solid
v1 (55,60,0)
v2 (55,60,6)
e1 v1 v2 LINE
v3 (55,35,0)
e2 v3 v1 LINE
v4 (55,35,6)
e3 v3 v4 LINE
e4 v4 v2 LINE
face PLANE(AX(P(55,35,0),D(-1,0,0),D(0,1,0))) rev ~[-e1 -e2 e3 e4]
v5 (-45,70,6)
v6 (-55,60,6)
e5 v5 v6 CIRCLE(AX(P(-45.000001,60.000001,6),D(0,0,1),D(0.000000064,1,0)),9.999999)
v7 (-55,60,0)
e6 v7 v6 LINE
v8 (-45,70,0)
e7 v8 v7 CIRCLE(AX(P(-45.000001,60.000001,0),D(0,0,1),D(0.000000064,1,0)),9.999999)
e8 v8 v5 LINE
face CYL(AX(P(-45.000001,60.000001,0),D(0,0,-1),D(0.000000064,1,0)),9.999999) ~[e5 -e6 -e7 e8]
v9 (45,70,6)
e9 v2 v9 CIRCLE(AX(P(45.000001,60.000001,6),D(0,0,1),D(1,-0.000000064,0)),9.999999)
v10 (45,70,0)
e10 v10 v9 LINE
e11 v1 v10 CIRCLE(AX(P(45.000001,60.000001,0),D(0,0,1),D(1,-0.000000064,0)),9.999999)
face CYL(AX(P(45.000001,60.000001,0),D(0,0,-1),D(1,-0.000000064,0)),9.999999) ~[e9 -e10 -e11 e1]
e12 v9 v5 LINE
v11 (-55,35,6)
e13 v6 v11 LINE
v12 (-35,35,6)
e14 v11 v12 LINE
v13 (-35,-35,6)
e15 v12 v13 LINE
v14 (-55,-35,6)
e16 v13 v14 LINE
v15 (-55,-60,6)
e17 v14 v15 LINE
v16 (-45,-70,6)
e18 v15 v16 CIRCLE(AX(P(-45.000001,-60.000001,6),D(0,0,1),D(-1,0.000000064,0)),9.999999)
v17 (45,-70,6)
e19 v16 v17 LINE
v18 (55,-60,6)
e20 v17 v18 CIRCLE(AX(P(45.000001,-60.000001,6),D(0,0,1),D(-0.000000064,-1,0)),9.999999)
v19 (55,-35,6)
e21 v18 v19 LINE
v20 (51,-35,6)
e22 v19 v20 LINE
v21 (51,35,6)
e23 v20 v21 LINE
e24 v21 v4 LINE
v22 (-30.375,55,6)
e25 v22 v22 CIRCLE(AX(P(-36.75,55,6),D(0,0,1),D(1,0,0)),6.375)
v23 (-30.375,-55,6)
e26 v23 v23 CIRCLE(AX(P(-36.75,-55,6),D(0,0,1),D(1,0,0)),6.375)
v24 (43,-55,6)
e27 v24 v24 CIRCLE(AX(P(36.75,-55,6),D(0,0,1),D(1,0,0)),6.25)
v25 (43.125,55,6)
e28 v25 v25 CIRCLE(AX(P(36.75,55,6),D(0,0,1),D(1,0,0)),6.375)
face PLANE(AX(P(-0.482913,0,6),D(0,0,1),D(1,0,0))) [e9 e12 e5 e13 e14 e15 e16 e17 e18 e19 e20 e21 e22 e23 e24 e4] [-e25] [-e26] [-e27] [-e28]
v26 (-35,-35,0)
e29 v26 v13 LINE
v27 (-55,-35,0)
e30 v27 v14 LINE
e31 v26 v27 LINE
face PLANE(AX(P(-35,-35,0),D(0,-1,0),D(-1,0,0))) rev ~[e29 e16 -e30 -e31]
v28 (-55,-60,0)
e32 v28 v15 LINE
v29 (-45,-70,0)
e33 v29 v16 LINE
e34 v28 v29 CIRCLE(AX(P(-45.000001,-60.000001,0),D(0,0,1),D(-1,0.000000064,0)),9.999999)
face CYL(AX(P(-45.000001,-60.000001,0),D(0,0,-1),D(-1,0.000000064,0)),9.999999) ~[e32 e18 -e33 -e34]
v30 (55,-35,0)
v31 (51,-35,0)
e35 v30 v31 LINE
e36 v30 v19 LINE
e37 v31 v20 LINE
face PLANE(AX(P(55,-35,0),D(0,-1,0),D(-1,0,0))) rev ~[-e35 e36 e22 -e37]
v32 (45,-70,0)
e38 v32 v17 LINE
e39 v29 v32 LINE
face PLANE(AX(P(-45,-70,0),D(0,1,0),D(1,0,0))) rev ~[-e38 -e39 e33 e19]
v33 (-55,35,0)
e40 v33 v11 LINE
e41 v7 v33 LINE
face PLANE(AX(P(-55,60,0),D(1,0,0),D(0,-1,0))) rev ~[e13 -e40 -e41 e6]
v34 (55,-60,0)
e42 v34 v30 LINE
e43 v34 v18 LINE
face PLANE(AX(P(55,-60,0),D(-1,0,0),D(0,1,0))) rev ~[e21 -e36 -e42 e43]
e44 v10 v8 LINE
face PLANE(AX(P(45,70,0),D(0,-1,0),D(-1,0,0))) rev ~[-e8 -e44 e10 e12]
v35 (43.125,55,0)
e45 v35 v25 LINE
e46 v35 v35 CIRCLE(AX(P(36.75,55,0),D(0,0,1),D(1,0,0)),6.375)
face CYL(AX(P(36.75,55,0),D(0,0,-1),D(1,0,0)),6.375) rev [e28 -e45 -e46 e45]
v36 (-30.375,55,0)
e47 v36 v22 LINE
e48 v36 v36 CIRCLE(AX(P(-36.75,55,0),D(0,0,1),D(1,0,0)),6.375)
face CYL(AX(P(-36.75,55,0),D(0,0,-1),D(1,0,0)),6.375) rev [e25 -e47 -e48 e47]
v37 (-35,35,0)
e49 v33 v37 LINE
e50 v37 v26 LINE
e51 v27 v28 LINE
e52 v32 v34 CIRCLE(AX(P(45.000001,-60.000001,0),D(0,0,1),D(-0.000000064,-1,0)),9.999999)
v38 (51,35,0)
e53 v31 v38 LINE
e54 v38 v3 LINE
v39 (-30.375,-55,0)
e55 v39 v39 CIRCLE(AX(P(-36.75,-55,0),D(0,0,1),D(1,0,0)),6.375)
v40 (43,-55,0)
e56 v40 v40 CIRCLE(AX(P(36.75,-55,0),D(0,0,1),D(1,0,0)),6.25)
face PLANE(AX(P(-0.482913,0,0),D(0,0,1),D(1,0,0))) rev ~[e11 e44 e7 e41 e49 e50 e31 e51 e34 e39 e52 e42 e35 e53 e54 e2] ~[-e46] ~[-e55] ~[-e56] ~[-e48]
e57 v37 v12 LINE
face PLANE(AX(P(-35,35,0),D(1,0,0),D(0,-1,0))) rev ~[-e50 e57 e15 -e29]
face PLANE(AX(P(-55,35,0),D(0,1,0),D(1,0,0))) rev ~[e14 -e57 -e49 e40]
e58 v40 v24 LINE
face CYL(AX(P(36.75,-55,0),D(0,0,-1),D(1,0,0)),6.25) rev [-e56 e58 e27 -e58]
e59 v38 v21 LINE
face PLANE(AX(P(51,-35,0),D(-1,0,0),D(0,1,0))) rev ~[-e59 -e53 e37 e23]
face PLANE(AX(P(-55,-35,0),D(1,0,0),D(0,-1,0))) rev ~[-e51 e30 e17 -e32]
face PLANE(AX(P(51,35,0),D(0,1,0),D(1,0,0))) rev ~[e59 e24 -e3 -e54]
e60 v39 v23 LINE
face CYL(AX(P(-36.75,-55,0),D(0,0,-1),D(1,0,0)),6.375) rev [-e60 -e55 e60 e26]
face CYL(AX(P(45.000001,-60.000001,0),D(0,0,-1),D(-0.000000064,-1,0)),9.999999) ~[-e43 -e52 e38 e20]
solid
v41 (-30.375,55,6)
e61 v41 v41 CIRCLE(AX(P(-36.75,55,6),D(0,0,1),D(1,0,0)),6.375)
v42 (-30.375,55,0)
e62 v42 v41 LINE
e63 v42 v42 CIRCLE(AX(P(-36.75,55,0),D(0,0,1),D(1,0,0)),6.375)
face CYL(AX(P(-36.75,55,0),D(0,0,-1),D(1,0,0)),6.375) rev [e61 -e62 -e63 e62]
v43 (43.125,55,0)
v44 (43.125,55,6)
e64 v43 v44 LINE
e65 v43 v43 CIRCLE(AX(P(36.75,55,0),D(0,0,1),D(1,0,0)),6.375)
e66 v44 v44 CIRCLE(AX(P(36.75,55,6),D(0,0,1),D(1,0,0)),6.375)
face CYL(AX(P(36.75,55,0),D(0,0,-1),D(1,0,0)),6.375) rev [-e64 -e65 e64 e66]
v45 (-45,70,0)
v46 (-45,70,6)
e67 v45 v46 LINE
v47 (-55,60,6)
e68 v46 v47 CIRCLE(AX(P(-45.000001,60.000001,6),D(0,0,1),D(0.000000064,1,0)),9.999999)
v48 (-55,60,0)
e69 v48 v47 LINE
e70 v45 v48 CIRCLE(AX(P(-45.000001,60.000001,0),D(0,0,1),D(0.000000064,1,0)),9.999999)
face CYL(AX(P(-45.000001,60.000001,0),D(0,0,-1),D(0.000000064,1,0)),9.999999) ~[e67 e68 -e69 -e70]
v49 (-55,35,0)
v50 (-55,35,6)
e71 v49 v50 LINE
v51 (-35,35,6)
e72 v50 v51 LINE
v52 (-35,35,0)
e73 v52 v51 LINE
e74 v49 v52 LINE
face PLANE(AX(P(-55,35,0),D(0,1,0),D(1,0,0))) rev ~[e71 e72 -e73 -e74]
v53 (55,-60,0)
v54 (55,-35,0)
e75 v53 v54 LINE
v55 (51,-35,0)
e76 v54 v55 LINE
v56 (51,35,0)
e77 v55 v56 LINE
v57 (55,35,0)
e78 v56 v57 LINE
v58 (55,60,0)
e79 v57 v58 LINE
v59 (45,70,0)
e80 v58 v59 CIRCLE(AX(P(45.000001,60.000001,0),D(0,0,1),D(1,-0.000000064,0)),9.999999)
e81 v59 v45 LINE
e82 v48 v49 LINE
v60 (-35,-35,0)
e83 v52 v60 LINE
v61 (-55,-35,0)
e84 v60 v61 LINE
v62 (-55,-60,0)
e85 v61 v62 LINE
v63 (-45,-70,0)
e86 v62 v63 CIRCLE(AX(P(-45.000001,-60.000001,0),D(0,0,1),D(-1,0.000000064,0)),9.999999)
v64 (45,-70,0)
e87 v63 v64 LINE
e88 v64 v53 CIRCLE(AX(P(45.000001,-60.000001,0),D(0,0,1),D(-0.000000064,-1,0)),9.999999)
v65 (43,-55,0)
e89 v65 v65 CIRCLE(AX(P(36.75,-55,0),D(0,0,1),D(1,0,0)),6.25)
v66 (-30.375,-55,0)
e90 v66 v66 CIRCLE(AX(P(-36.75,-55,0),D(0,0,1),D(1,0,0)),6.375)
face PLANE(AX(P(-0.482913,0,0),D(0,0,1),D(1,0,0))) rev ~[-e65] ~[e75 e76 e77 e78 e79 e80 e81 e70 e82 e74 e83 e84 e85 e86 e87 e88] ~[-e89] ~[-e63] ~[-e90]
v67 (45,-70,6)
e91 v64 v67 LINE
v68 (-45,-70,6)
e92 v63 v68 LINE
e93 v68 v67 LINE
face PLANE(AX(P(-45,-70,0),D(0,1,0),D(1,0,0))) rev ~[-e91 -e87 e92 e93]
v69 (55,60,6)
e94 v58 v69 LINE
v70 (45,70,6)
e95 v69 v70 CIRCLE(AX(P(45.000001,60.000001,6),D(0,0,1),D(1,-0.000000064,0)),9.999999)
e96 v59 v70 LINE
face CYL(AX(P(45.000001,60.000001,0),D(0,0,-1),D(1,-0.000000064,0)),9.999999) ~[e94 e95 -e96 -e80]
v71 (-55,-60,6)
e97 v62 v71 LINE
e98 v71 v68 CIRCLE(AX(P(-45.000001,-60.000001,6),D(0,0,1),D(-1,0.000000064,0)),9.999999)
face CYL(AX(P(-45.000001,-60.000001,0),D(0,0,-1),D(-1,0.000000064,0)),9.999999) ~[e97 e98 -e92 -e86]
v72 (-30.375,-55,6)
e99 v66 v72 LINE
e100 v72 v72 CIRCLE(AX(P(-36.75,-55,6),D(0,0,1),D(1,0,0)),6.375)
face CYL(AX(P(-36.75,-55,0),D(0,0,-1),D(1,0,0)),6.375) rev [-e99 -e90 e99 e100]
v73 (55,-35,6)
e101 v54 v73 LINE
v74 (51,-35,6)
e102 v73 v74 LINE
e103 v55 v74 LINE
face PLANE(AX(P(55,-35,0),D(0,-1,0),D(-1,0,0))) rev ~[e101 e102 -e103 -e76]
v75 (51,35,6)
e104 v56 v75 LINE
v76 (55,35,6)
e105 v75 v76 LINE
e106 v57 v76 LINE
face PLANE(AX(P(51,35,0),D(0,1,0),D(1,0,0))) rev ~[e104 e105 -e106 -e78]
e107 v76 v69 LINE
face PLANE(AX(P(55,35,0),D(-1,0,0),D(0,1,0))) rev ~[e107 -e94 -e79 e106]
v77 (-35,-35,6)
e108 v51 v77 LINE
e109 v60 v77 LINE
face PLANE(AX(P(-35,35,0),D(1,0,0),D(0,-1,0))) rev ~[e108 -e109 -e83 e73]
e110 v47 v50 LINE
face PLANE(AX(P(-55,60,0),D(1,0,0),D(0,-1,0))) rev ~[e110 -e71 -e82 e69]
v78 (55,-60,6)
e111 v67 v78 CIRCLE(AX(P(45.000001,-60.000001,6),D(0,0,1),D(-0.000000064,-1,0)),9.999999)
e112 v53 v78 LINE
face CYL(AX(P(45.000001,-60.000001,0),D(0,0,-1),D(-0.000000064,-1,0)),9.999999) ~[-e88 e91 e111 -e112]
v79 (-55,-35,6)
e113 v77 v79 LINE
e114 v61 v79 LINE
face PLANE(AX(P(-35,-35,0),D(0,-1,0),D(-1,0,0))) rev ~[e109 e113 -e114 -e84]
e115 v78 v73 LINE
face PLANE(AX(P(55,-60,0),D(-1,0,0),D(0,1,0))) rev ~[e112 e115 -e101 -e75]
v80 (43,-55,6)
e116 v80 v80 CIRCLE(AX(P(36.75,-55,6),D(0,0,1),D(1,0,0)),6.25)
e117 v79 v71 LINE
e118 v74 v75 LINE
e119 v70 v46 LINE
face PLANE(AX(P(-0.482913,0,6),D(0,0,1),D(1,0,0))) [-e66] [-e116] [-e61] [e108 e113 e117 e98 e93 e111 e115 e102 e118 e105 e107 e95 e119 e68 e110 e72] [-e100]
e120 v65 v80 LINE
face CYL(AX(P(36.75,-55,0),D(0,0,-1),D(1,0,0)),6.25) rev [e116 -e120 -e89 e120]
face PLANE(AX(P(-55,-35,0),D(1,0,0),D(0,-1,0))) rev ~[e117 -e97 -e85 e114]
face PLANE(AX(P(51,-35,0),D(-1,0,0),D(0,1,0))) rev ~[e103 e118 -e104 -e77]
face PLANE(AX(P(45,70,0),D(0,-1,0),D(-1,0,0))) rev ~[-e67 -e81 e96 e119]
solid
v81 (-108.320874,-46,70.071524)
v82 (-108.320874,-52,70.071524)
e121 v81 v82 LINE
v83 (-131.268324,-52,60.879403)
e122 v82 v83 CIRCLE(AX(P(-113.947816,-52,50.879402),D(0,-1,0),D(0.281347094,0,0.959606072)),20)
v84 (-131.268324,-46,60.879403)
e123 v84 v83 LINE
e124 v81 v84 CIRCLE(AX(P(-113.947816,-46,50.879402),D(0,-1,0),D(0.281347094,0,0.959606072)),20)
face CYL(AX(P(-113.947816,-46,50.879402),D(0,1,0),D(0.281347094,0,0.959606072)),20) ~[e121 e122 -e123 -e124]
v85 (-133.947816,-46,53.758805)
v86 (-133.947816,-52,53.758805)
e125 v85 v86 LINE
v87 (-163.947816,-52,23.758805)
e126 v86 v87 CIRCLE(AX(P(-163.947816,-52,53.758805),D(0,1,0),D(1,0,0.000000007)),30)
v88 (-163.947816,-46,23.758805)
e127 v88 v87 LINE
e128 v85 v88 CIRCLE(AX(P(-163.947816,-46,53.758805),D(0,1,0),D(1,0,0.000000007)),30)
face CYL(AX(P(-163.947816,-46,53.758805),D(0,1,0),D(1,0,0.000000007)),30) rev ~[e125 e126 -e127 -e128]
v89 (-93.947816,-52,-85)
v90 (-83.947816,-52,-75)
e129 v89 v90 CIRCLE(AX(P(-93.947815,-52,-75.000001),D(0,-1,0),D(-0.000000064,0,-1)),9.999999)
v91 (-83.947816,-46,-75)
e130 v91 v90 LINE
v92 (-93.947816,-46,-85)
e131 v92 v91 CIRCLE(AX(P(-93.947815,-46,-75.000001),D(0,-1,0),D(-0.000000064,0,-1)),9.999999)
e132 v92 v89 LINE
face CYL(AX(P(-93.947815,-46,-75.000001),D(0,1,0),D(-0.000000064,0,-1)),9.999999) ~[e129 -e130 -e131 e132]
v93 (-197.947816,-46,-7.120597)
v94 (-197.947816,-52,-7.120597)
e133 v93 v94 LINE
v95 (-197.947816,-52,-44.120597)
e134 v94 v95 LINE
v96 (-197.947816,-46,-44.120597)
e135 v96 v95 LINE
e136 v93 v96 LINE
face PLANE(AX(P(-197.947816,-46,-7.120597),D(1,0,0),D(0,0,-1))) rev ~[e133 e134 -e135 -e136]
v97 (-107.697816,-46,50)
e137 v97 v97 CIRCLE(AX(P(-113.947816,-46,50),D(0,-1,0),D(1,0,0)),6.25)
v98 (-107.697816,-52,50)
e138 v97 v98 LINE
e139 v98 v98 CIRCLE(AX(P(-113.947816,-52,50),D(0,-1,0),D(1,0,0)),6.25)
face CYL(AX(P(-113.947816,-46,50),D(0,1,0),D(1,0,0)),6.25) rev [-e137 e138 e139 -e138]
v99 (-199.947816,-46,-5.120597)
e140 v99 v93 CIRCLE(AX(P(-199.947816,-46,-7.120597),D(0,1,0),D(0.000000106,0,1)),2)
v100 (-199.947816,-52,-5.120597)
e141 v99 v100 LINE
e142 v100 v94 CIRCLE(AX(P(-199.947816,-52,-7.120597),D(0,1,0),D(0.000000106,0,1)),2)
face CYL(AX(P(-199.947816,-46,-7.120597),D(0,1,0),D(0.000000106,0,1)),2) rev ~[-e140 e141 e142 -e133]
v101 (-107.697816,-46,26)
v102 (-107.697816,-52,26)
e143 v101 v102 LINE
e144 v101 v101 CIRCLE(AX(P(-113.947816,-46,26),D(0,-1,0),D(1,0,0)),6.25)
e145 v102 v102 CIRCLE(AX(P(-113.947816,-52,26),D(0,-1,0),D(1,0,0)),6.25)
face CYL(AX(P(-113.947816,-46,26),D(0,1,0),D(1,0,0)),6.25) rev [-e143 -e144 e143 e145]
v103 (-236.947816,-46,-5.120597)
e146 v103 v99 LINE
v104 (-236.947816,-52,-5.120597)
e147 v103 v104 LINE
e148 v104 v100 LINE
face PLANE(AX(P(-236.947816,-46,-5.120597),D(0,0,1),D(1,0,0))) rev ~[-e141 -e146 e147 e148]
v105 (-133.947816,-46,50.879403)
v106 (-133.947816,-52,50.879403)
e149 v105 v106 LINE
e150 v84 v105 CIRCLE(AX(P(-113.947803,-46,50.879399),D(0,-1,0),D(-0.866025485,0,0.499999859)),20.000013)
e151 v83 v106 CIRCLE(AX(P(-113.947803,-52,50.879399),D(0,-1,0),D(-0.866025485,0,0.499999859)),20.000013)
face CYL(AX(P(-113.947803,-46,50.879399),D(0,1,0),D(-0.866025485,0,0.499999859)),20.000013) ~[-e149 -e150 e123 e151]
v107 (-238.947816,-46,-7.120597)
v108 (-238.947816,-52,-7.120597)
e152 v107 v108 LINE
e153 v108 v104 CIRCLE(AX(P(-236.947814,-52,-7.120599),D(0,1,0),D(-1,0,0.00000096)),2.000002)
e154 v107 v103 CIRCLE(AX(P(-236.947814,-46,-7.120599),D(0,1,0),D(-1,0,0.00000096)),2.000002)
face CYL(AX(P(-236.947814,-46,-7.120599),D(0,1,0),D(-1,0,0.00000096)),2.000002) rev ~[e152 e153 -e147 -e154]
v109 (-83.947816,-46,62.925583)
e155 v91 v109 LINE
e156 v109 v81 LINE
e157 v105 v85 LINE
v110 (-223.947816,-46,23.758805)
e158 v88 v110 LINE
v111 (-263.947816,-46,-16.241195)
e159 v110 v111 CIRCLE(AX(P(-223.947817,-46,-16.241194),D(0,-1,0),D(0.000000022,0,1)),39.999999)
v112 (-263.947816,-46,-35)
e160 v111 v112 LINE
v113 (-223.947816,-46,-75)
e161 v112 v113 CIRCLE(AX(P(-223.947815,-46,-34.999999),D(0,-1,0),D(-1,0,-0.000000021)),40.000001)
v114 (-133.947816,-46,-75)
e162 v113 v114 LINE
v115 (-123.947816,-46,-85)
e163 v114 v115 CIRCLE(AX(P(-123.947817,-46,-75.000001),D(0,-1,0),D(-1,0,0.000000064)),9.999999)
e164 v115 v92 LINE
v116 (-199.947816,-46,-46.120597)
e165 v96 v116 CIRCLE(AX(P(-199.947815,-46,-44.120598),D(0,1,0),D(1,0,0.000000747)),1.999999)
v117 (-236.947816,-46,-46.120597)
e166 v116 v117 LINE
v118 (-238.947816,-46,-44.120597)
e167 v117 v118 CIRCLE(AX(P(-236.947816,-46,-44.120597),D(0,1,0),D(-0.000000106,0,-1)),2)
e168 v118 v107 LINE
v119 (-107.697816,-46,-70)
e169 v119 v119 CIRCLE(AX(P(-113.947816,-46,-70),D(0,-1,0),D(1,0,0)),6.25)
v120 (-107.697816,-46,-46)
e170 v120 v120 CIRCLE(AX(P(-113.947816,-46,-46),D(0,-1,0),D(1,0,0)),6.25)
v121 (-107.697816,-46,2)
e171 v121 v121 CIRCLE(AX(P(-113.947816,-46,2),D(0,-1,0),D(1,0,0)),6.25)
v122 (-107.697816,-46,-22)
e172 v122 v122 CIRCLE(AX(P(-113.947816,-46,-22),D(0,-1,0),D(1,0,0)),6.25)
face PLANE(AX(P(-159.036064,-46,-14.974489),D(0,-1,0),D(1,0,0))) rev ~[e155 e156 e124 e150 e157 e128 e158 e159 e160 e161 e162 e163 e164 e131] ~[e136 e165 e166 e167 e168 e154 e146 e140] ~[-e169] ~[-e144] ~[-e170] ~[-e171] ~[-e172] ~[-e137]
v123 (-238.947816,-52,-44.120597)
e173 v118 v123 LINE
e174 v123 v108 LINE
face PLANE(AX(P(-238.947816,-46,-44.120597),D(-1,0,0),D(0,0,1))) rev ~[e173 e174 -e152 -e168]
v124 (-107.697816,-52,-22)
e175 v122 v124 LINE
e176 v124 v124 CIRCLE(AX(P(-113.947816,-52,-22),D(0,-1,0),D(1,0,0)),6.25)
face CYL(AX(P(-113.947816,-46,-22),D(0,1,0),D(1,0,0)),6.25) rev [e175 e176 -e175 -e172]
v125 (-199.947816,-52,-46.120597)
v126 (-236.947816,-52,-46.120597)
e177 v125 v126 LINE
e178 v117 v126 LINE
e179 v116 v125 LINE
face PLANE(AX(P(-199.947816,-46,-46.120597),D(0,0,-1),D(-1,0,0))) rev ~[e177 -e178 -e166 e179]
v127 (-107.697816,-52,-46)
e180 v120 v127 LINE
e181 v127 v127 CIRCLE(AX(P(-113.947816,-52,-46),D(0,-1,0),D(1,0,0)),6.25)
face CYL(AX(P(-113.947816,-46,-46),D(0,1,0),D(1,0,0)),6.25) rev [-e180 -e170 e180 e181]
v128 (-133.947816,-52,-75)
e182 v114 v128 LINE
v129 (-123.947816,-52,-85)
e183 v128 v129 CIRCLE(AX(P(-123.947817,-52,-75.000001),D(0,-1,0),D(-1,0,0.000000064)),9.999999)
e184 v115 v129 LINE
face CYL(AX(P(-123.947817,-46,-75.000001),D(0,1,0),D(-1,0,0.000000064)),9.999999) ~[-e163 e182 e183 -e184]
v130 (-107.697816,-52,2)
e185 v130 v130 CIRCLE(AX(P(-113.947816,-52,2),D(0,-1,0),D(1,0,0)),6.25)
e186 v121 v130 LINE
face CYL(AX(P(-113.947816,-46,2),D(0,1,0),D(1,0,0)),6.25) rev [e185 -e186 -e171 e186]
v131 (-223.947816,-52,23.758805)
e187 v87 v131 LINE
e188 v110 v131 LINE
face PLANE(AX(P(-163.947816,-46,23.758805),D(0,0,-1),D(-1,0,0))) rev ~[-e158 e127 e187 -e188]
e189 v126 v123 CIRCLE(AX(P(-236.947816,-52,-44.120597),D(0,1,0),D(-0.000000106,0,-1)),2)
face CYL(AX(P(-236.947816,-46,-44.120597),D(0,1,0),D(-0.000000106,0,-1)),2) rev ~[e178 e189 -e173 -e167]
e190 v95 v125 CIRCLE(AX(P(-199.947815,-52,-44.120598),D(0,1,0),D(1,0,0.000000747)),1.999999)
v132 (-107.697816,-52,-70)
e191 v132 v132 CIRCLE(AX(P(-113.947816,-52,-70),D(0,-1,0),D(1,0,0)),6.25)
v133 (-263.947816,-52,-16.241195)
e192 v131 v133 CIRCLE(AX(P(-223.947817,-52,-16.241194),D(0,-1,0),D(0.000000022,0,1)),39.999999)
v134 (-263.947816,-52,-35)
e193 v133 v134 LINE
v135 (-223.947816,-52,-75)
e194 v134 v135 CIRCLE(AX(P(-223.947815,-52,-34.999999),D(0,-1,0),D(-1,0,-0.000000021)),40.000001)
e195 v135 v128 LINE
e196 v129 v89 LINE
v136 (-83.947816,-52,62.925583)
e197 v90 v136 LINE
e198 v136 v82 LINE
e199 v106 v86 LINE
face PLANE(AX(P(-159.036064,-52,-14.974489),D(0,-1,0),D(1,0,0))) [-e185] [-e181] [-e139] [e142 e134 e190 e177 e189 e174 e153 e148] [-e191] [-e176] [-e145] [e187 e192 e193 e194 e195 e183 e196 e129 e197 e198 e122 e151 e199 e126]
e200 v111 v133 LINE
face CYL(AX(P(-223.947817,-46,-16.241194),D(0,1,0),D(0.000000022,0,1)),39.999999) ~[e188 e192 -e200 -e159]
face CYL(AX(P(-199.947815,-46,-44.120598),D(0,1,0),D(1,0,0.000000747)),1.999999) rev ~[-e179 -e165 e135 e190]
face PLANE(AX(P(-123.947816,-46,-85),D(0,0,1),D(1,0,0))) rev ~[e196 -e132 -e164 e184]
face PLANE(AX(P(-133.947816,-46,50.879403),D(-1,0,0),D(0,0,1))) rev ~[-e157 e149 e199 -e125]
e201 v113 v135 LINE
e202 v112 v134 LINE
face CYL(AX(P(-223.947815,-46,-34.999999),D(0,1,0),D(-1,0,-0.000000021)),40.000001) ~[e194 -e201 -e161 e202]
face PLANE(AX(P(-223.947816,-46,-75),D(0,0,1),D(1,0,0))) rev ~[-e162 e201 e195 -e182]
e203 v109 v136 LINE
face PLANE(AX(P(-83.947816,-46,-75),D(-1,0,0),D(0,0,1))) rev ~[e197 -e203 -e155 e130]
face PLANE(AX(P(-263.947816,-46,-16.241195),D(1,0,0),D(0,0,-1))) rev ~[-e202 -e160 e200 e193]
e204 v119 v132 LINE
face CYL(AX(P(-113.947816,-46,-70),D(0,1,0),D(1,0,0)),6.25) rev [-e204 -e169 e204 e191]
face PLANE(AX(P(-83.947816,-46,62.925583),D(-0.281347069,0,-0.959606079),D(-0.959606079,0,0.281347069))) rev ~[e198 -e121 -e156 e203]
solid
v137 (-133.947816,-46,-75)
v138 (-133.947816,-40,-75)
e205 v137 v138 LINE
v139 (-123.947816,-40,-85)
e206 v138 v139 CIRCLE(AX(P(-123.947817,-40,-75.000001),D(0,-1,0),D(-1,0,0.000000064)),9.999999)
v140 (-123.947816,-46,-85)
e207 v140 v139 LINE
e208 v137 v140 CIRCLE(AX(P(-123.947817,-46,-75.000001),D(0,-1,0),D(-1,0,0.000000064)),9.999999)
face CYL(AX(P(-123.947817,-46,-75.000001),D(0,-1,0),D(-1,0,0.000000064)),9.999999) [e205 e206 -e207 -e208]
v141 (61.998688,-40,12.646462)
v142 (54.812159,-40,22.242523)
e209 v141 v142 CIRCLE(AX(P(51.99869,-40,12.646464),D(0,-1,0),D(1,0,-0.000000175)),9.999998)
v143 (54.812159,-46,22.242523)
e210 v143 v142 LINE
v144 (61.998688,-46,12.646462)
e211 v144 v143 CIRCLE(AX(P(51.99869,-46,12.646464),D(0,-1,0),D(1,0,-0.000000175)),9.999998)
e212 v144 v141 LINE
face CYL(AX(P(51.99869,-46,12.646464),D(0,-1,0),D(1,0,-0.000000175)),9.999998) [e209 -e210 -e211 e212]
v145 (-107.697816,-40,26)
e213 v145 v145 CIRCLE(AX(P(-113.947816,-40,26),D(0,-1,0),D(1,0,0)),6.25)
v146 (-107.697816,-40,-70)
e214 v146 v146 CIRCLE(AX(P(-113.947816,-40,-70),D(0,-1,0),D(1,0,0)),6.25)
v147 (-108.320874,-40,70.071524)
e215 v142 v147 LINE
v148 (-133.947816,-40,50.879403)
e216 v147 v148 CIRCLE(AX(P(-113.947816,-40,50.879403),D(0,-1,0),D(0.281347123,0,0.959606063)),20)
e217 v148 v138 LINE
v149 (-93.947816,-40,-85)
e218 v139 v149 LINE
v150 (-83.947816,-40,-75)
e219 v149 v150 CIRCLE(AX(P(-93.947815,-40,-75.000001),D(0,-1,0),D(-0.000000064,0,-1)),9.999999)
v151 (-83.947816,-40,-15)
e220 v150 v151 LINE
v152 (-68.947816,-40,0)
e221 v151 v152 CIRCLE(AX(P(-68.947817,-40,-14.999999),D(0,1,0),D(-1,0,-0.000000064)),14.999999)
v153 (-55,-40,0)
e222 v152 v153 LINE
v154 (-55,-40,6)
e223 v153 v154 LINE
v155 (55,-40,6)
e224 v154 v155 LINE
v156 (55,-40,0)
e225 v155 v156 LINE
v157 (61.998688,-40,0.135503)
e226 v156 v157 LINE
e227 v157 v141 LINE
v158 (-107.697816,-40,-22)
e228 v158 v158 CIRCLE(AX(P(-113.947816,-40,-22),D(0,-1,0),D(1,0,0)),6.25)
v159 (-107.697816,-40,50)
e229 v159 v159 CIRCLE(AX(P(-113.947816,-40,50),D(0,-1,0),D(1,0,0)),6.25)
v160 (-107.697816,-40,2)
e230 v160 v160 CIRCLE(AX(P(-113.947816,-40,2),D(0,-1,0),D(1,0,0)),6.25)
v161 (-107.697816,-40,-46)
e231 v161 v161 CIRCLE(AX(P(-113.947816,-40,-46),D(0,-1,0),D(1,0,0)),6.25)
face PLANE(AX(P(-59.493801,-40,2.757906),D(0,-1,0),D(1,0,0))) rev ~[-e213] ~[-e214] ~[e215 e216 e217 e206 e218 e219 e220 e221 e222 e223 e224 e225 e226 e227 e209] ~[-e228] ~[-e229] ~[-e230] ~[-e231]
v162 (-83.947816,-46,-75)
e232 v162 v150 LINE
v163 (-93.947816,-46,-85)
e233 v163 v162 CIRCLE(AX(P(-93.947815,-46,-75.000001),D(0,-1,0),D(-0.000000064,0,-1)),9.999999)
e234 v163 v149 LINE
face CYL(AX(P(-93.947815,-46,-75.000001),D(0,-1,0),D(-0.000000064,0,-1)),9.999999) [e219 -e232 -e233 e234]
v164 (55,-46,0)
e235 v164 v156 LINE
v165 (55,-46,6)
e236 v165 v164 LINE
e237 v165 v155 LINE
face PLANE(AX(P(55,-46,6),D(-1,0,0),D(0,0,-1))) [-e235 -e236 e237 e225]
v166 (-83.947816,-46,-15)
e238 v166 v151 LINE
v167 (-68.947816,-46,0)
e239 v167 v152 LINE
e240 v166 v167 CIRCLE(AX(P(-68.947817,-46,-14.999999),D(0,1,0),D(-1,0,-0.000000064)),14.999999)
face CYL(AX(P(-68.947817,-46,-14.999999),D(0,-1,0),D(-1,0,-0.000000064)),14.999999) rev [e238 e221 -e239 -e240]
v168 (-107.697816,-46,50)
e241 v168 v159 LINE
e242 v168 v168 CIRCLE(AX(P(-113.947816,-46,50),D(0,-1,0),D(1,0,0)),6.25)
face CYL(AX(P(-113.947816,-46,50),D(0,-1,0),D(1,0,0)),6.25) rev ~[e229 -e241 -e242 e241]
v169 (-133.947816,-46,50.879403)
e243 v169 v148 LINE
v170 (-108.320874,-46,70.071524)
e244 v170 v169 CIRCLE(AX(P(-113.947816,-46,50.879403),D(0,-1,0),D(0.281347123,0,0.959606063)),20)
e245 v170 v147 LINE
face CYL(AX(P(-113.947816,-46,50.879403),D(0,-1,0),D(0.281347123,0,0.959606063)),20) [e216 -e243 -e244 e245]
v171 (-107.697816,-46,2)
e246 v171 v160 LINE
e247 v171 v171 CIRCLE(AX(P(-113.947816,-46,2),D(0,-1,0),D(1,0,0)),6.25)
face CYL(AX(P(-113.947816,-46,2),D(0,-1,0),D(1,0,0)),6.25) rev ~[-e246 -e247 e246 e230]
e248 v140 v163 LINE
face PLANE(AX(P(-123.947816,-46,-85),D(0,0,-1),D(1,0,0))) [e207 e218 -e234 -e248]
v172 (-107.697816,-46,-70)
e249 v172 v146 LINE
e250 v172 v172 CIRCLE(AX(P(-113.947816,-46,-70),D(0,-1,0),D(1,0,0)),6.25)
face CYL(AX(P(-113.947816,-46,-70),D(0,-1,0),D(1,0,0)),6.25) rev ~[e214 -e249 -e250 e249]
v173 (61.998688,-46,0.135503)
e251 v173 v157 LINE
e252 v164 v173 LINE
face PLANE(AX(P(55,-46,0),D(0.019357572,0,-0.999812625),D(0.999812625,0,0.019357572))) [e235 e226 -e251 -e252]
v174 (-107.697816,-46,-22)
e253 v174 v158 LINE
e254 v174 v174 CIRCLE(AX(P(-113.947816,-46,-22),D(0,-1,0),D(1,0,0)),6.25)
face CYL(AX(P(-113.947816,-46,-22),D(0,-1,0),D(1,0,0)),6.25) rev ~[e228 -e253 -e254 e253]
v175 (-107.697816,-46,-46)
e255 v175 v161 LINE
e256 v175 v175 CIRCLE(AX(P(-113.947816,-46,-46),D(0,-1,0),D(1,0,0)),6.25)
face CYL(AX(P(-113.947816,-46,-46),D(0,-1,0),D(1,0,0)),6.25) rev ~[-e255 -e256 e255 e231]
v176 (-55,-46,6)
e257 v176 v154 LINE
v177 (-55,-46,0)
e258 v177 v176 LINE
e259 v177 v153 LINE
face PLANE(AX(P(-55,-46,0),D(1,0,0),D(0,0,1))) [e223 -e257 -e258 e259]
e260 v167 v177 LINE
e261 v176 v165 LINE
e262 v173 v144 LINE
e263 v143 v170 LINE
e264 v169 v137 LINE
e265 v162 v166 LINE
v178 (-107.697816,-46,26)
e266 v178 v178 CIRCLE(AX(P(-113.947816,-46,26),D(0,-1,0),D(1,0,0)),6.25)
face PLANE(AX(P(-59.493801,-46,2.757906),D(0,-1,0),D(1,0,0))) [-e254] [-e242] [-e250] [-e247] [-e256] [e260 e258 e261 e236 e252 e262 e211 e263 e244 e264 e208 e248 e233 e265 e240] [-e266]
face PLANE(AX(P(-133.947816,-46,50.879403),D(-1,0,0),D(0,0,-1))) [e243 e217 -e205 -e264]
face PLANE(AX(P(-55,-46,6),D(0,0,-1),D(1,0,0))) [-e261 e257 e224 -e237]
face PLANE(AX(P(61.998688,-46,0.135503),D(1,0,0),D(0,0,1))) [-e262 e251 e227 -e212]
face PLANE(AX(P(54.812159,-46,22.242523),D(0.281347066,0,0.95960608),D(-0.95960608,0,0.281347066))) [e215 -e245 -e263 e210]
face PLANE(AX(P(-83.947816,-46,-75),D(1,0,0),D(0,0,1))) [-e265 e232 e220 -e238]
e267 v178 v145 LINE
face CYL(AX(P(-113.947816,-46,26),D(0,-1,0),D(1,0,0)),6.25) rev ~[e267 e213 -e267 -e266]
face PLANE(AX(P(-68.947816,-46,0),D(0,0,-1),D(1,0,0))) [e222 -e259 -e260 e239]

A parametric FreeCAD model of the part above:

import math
import FreeCAD as App
import Part
import Sketcher

doc = App.newDocument("Part")
body = doc.addObject("PartDesign::Body", "Body")

sketch1 = body.newObject("Sketcher::SketchObject", "Sketch")
sketch1.AttachmentSupport = (doc.getObject("XY_Plane"), [""])
sketch1.MapMode = "FlatFace"
sketch1.addGeometry([
    Part.ArcOfCircle(Part.Circle(App.Vector(45.000001, 60.000001, 0), App.Vector(0, 0, 1), 9.999999), math.radians(-0.000004), math.radians(90.000004)),
    Part.LineSegment(App.Vector(45, 70, 0), App.Vector(-45, 70, 0)),
    Part.ArcOfCircle(Part.Circle(App.Vector(-45.000001, 60.000001, 0), App.Vector(0, 0, 1), 9.999999), math.radians(89.999996), math.radians(180.000004)),
    Part.LineSegment(App.Vector(-55, 60, 0), App.Vector(-55, 35, 0)),
    Part.LineSegment(App.Vector(-55, 35, 0), App.Vector(-35, 35, 0)),
    Part.LineSegment(App.Vector(-35, 35, 0), App.Vector(-35, -35, 0)),
    Part.LineSegment(App.Vector(-35, -35, 0), App.Vector(-55, -35, 0)),
    Part.LineSegment(App.Vector(-55, -35, 0), App.Vector(-55, -60, 0)),
    Part.ArcOfCircle(Part.Circle(App.Vector(-45.000001, -60.000001, 0), App.Vector(0, 0, 1), 9.999999), math.radians(179.999996), math.radians(270.000004)),
    Part.LineSegment(App.Vector(-45, -70, 0), App.Vector(45, -70, 0)),
    Part.ArcOfCircle(Part.Circle(App.Vector(45.000001, -60.000001, 0), App.Vector(0, 0, 1), 9.999999), math.radians(-90.000004), math.radians(0.000004)),
    Part.LineSegment(App.Vector(55, -60, 0), App.Vector(55, -35, 0)),
    Part.LineSegment(App.Vector(55, -35, 0), App.Vector(51, -35, 0)),
    Part.LineSegment(App.Vector(51, -35, 0), App.Vector(51, 35, 0)),
    Part.LineSegment(App.Vector(51, 35, 0), App.Vector(55, 35, 0)),
    Part.LineSegment(App.Vector(55, 35, 0), App.Vector(55, 60, 0)),
    Part.Circle(App.Vector(-36.75, -55, 0), App.Vector(0, 0, 1), 6.375),
    Part.Circle(App.Vector(36.75, -55, 0), App.Vector(0, 0, 1), 6.25),
    Part.Circle(App.Vector(-36.75, 55, 0), App.Vector(0, 0, 1), 6.375),
    Part.Circle(App.Vector(36.75, 55, 0), App.Vector(0, 0, 1), 6.375),
], False)
sketch1.addConstraint([
    Sketcher.Constraint("Tangent", 0, 2, 1, 1),
    Sketcher.Constraint("Tangent", 1, 2, 2, 1),
    Sketcher.Constraint("Tangent", 2, 2, 3, 1),
    Sketcher.Constraint("Coincident", 3, 2, 4, 1),
    Sketcher.Constraint("Coincident", 4, 2, 5, 1),
    Sketcher.Constraint("Coincident", 5, 2, 6, 1),
    Sketcher.Constraint("Coincident", 6, 2, 7, 1),
    Sketcher.Constraint("Tangent", 7, 2, 8, 1),
    Sketcher.Constraint("Tangent", 8, 2, 9, 1),
    Sketcher.Constraint("Tangent", 9, 2, 10, 1),
    Sketcher.Constraint("Tangent", 10, 2, 11, 1),
    Sketcher.Constraint("Coincident", 11, 2, 12, 1),
    Sketcher.Constraint("Coincident", 12, 2, 13, 1),
    Sketcher.Constraint("Coincident", 13, 2, 14, 1),
    Sketcher.Constraint("Coincident", 14, 2, 15, 1),
    Sketcher.Constraint("Tangent", 15, 2, 0, 1),
    Sketcher.Constraint("Horizontal", 1),
    Sketcher.Constraint("Vertical", 3),
    Sketcher.Constraint("Horizontal", 4),
    Sketcher.Constraint("Vertical", 5),
    Sketcher.Constraint("Horizontal", 6),
    Sketcher.Constraint("Vertical", 7),
    Sketcher.Constraint("Horizontal", 9),
    Sketcher.Constraint("Vertical", 11),
    Sketcher.Constraint("Horizontal", 12),
    Sketcher.Constraint("Vertical", 13),
    Sketcher.Constraint("Horizontal", 14),
    Sketcher.Constraint("Vertical", 15),
    Sketcher.Constraint("Equal", 0, 2),
    Sketcher.Constraint("Equal", 2, 8),
    Sketcher.Constraint("Equal", 8, 10),
    Sketcher.Constraint("Equal", 16, 18),
    Sketcher.Constraint("Equal", 18, 19),
    Sketcher.Constraint("Symmetric", 0, 3, 8, 3, -1, 1),
    Sketcher.Constraint("Symmetric", 17, 3, 18, 3, -1, 1),
    Sketcher.Constraint("Symmetric", 16, 3, 19, 3, -1, 1),
    Sketcher.Constraint("Symmetric", 3, 2, 11, 2, -1, 1),
    Sketcher.Constraint("Symmetric", 16, 3, 17, 3, -2),
    Sketcher.Constraint("Symmetric", 6, 2, 11, 2, -2),
    Sketcher.Constraint("Horizontal", 4, 2, 13, 2),
    Sketcher.Constraint("Radius", 0, 9.999999),
    Sketcher.Constraint("Diameter", 17, 12.5),
    Sketcher.Constraint("Diameter", 16, 12.75),
    Sketcher.Constraint("DistanceX", 1, 2, 1, 1, 90.0),
    Sketcher.Constraint("DistanceX", 4, 1, 4, 2, 20.0),
    Sketcher.Constraint("DistanceX", 12, 2, 12, 1, 4.0),
    Sketcher.Constraint("DistanceY", 3, 2, 3, 1, 25.0),
    Sketcher.Constraint("DistanceY", 5, 2, 5, 1, 70.0),
    Sketcher.Constraint("DistanceY", 16, 3, -1, 1, 55.0),
    Sketcher.Constraint("DistanceX", 16, 3, 17, 3, 73.5),
])
pad1 = body.newObject("PartDesign::Pad", "Pad")
pad1.Profile = sketch1
pad1.Length = 6
body2 = doc.addObject("PartDesign::Body", "Body001")

sketch2 = body2.newObject("Sketcher::SketchObject", "Sketch001")
sketch2.AttachmentSupport = (doc.getObject("XZ_Plane001"), [""])
sketch2.MapMode = "FlatFace"
sketch2.AttachmentOffset = App.Placement(App.Vector(0, 0, 46), App.Rotation())
sketch2.addGeometry([
    Part.LineSegment(App.Vector(-55, 0, 0), App.Vector(-55, 6, 0)),
    Part.LineSegment(App.Vector(-55, 6, 0), App.Vector(55, 6, 0)),
    Part.LineSegment(App.Vector(55, 6, 0), App.Vector(55, 0, 0)),
    Part.LineSegment(App.Vector(55, 0, 0), App.Vector(61.998688, 0.135503, 0)),
    Part.LineSegment(App.Vector(61.998688, 0.135503, 0), App.Vector(61.998688, 12.646462, 0)),
    Part.ArcOfCircle(Part.Circle(App.Vector(51.99869, 12.646464, 0), App.Vector(0, 0, 1), 9.999998), math.radians(-0.00001), math.radians(73.659388)),
    Part.LineSegment(App.Vector(54.812159, 22.242523, 0), App.Vector(-108.320874, 70.071524, 0)),
    Part.ArcOfCircle(Part.Circle(App.Vector(-113.947816, 50.879403, 0), App.Vector(0, 0, 1), 20), math.radians(73.659378), math.radians(180)),
    Part.LineSegment(App.Vector(-133.947816, 50.879403, 0), App.Vector(-133.947816, -75, 0)),
    Part.ArcOfCircle(Part.Circle(App.Vector(-123.947817, -75.000001, 0), App.Vector(0, 0, 1), 9.999999), math.radians(179.999996), math.radians(270.000004)),
    Part.LineSegment(App.Vector(-123.947816, -85, 0), App.Vector(-93.947816, -85, 0)),
    Part.ArcOfCircle(Part.Circle(App.Vector(-93.947815, -75.000001, 0), App.Vector(0, 0, 1), 9.999999), math.radians(-90.000004), math.radians(0.000004)),
    Part.LineSegment(App.Vector(-83.947816, -75, 0), App.Vector(-83.947816, -15, 0)),
    Part.ArcOfCircle(Part.Circle(App.Vector(-68.947817, -14.999999, 0), App.Vector(0, 0, 1), 14.999999), math.radians(89.999996), math.radians(180.000004)),
    Part.LineSegment(App.Vector(-68.947816, 0, 0), App.Vector(-55, 0, 0)),
    Part.Circle(App.Vector(-113.947816, -70, 0), App.Vector(0, 0, 1), 6.25),
    Part.Circle(App.Vector(-113.947816, -46, 0), App.Vector(0, 0, 1), 6.25),
    Part.Circle(App.Vector(-113.947816, -22, 0), App.Vector(0, 0, 1), 6.25),
    Part.Circle(App.Vector(-113.947816, 2, 0), App.Vector(0, 0, 1), 6.25),
    Part.Circle(App.Vector(-113.947816, 26, 0), App.Vector(0, 0, 1), 6.25),
    Part.Circle(App.Vector(-113.947816, 50, 0), App.Vector(0, 0, 1), 6.25),
], False)
sketch2.addConstraint([
    Sketcher.Constraint("Coincident", 0, 2, 1, 1),
    Sketcher.Constraint("Coincident", 1, 2, 2, 1),
    Sketcher.Constraint("Coincident", 2, 2, 3, 1),
    Sketcher.Constraint("Coincident", 3, 2, 4, 1),
    Sketcher.Constraint("Tangent", 4, 2, 5, 1),
    Sketcher.Constraint("Tangent", 5, 2, 6, 1),
    Sketcher.Constraint("Tangent", 6, 2, 7, 1),
    Sketcher.Constraint("Tangent", 7, 2, 8, 1),
    Sketcher.Constraint("Tangent", 8, 2, 9, 1),
    Sketcher.Constraint("Tangent", 9, 2, 10, 1),
    Sketcher.Constraint("Tangent", 10, 2, 11, 1),
    Sketcher.Constraint("Tangent", 11, 2, 12, 1),
    Sketcher.Constraint("Tangent", 12, 2, 13, 2),
    Sketcher.Constraint("Tangent", 13, 1, 14, 1),
    Sketcher.Constraint("Coincident", 14, 2, 0, 1),
    Sketcher.Constraint("Vertical", 0),
    Sketcher.Constraint("Horizontal", 1),
    Sketcher.Constraint("Vertical", 2),
    Sketcher.Constraint("Vertical", 4),
    Sketcher.Constraint("Vertical", 8),
    Sketcher.Constraint("Horizontal", 10),
    Sketcher.Constraint("Vertical", 12),
    Sketcher.Constraint("Horizontal", 14),
    Sketcher.Constraint("Equal", 5, 9),
    Sketcher.Constraint("Equal", 9, 11),
    Sketcher.Constraint("Equal", 15, 16),
    Sketcher.Constraint("Equal", 16, 17),
    Sketcher.Constraint("Equal", 17, 18),
    Sketcher.Constraint("Equal", 18, 19),
    Sketcher.Constraint("Equal", 19, 20),
    Sketcher.Constraint("Symmetric", 2, 2, 14, 2, -1, 1),
    Sketcher.Constraint("PointOnObject", 2, 2, -1),
    Sketcher.Constraint("Vertical", 7, 3, 15, 3),
    Sketcher.Constraint("Vertical", 15, 3, 16, 3),
    Sketcher.Constraint("Vertical", 16, 3, 17, 3),
    Sketcher.Constraint("Vertical", 17, 3, 18, 3),
    Sketcher.Constraint("Vertical", 18, 3, 19, 3),
    Sketcher.Constraint("Vertical", 19, 3, 20, 3),
    Sketcher.Constraint("Radius", 5, 9.999998),
    Sketcher.Constraint("Radius", 7, 20.0),
    Sketcher.Constraint("Radius", 13, 14.999999),
    Sketcher.Constraint("Diameter", 15, 12.5),
    Sketcher.Constraint("DistanceX", 1, 1, 1, 2, 110.0),
    Sketcher.Constraint("DistanceX", 10, 1, 10, 2, 30.0),
    Sketcher.Constraint("DistanceY", 0, 1, 0, 2, 6.0),
    Sketcher.Constraint("DistanceY", 12, 1, 12, 2, 60.0),
    Sketcher.Constraint("Distance", 3, 7.0),
    Sketcher.Constraint("Distance", 6, 169.999999),
    Sketcher.Constraint("DistanceY", 15, 3, -1, 1, 70.0),
    Sketcher.Constraint("DistanceY", 16, 3, -1, 1, 46.0),
    Sketcher.Constraint("DistanceY", 17, 3, -1, 1, 22.0),
    Sketcher.Constraint("DistanceY", -1, 1, 18, 3, 2.0),
    Sketcher.Constraint("DistanceY", -1, 1, 19, 3, 26.0),
    Sketcher.Constraint("DistanceY", -1, 1, 20, 3, 50.0),
    Sketcher.Constraint("DistanceY", 4, 1, 4, 2, 12.510959),
    Sketcher.Constraint("DistanceX", 14, 1, 14, 2, 13.947816),
    Sketcher.Constraint("DistanceY", 8, 2, 8, 1, 125.879403),
])
pad2 = body2.newObject("PartDesign::Pad", "Pad001")
pad2.Profile = sketch2
pad2.Length = 6
pad2.Reversed = True
body3 = doc.addObject("PartDesign::Body", "Body002")

sketch3 = body3.newObject("Sketcher::SketchObject", "Sketch002")
sketch3.AttachmentSupport = (doc.getObject("XY_Plane002"), [""])
sketch3.MapMode = "FlatFace"
sketch3.addGeometry([
    Part.ArcOfCircle(Part.Circle(App.Vector(45.000001, 60.000001, 0), App.Vector(0, 0, 1), 9.999999), math.radians(-0.000004), math.radians(90.000004)),
    Part.LineSegment(App.Vector(45, 70, 0), App.Vector(-45, 70, 0)),
    Part.ArcOfCircle(Part.Circle(App.Vector(-45.000001, 60.000001, 0), App.Vector(0, 0, 1), 9.999999), math.radians(89.999996), math.radians(180.000004)),
    Part.LineSegment(App.Vector(-55, 60, 0), App.Vector(-55, 35, 0)),
    Part.LineSegment(App.Vector(-55, 35, 0), App.Vector(-35, 35, 0)),
    Part.LineSegment(App.Vector(-35, 35, 0), App.Vector(-35, -35, 0)),
    Part.LineSegment(App.Vector(-35, -35, 0), App.Vector(-55, -35, 0)),
    Part.LineSegment(App.Vector(-55, -35, 0), App.Vector(-55, -60, 0)),
    Part.ArcOfCircle(Part.Circle(App.Vector(-45.000001, -60.000001, 0), App.Vector(0, 0, 1), 9.999999), math.radians(179.999996), math.radians(270.000004)),
    Part.LineSegment(App.Vector(-45, -70, 0), App.Vector(45, -70, 0)),
    Part.ArcOfCircle(Part.Circle(App.Vector(45.000001, -60.000001, 0), App.Vector(0, 0, 1), 9.999999), math.radians(-90.000004), math.radians(0.000004)),
    Part.LineSegment(App.Vector(55, -60, 0), App.Vector(55, -35, 0)),
    Part.LineSegment(App.Vector(55, -35, 0), App.Vector(51, -35, 0)),
    Part.LineSegment(App.Vector(51, -35, 0), App.Vector(51, 35, 0)),
    Part.LineSegment(App.Vector(51, 35, 0), App.Vector(55, 35, 0)),
    Part.LineSegment(App.Vector(55, 35, 0), App.Vector(55, 60, 0)),
    Part.Circle(App.Vector(-36.75, -55, 0), App.Vector(0, 0, 1), 6.375),
    Part.Circle(App.Vector(36.75, -55, 0), App.Vector(0, 0, 1), 6.25),
    Part.Circle(App.Vector(-36.75, 55, 0), App.Vector(0, 0, 1), 6.375),
    Part.Circle(App.Vector(36.75, 55, 0), App.Vector(0, 0, 1), 6.375),
], False)
sketch3.addConstraint([
    Sketcher.Constraint("Tangent", 0, 2, 1, 1),
    Sketcher.Constraint("Tangent", 1, 2, 2, 1),
    Sketcher.Constraint("Tangent", 2, 2, 3, 1),
    Sketcher.Constraint("Coincident", 3, 2, 4, 1),
    Sketcher.Constraint("Coincident", 4, 2, 5, 1),
    Sketcher.Constraint("Coincident", 5, 2, 6, 1),
    Sketcher.Constraint("Coincident", 6, 2, 7, 1),
    Sketcher.Constraint("Tangent", 7, 2, 8, 1),
    Sketcher.Constraint("Tangent", 8, 2, 9, 1),
    Sketcher.Constraint("Tangent", 9, 2, 10, 1),
    Sketcher.Constraint("Tangent", 10, 2, 11, 1),
    Sketcher.Constraint("Coincident", 11, 2, 12, 1),
    Sketcher.Constraint("Coincident", 12, 2, 13, 1),
    Sketcher.Constraint("Coincident", 13, 2, 14, 1),
    Sketcher.Constraint("Coincident", 14, 2, 15, 1),
    Sketcher.Constraint("Tangent", 15, 2, 0, 1),
    Sketcher.Constraint("Horizontal", 1),
    Sketcher.Constraint("Vertical", 3),
    Sketcher.Constraint("Horizontal", 4),
    Sketcher.Constraint("Vertical", 5),
    Sketcher.Constraint("Horizontal", 6),
    Sketcher.Constraint("Vertical", 7),
    Sketcher.Constraint("Horizontal", 9),
    Sketcher.Constraint("Vertical", 11),
    Sketcher.Constraint("Horizontal", 12),
    Sketcher.Constraint("Vertical", 13),
    Sketcher.Constraint("Horizontal", 14),
    Sketcher.Constraint("Vertical", 15),
    Sketcher.Constraint("Equal", 0, 2),
    Sketcher.Constraint("Equal", 2, 8),
    Sketcher.Constraint("Equal", 8, 10),
    Sketcher.Constraint("Equal", 16, 18),
    Sketcher.Constraint("Equal", 18, 19),
    Sketcher.Constraint("Symmetric", 0, 3, 8, 3, -1, 1),
    Sketcher.Constraint("Symmetric", 17, 3, 18, 3, -1, 1),
    Sketcher.Constraint("Symmetric", 16, 3, 19, 3, -1, 1),
    Sketcher.Constraint("Symmetric", 3, 2, 11, 2, -1, 1),
    Sketcher.Constraint("Symmetric", 16, 3, 17, 3, -2),
    Sketcher.Constraint("Symmetric", 6, 2, 11, 2, -2),
    Sketcher.Constraint("Horizontal", 4, 2, 13, 2),
    Sketcher.Constraint("Radius", 0, 9.999999),
    Sketcher.Constraint("Diameter", 17, 12.5),
    Sketcher.Constraint("Diameter", 16, 12.75),
    Sketcher.Constraint("DistanceX", 1, 2, 1, 1, 90.0),
    Sketcher.Constraint("DistanceX", 4, 1, 4, 2, 20.0),
    Sketcher.Constraint("DistanceX", 12, 2, 12, 1, 4.0),
    Sketcher.Constraint("DistanceY", 3, 2, 3, 1, 25.0),
    Sketcher.Constraint("DistanceY", 5, 2, 5, 1, 70.0),
    Sketcher.Constraint("DistanceY", 16, 3, -1, 1, 55.0),
    Sketcher.Constraint("DistanceX", 16, 3, 17, 3, 73.5),
])
pad3 = body3.newObject("PartDesign::Pad", "Pad002")
pad3.Profile = sketch3
pad3.Length = 6
body4 = doc.addObject("PartDesign::Body", "Body003")

sketch4 = body4.newObject("Sketcher::SketchObject", "Sketch003")
sketch4.AttachmentSupport = (doc.getObject("XZ_Plane003"), [""])
sketch4.MapMode = "FlatFace"
sketch4.AttachmentOffset = App.Placement(App.Vector(0, 0, 46), App.Rotation())
sketch4.addGeometry([
    Part.LineSegment(App.Vector(-83.947816, -75, 0), App.Vector(-83.947816, 62.925583, 0)),
    Part.LineSegment(App.Vector(-83.947816, 62.925583, 0), App.Vector(-108.320874, 70.071524, 0)),
    Part.ArcOfCircle(Part.Circle(App.Vector(-113.947816, 50.879402, 0), App.Vector(0, 0, 1), 20), math.radians(73.65938), math.radians(149.999998)),
    Part.ArcOfCircle(Part.Circle(App.Vector(-113.947803, 50.879399, 0), App.Vector(0, 0, 1), 20.000013), math.radians(150.000009), math.radians(179.99999)),
    Part.LineSegment(App.Vector(-133.947816, 50.879403, 0), App.Vector(-133.947816, 53.758805, 0)),
    Part.ArcOfCircle(Part.Circle(App.Vector(-163.947816, 53.758805, 0), App.Vector(0, 0, 1), 30), math.radians(-90), math.radians(0)),
    Part.LineSegment(App.Vector(-163.947816, 23.758805, 0), App.Vector(-223.947816, 23.758805, 0)),
    Part.ArcOfCircle(Part.Circle(App.Vector(-223.947817, -16.241194, 0), App.Vector(0, 0, 1), 39.999999), math.radians(89.999999), math.radians(180.000001)),
    Part.LineSegment(App.Vector(-263.947816, -16.241195, 0), App.Vector(-263.947816, -35, 0)),
    Part.ArcOfCircle(Part.Circle(App.Vector(-223.947815, -34.999999, 0), App.Vector(0, 0, 1), 40.000001), math.radians(-179.999999), math.radians(-90.000001)),
    Part.LineSegment(App.Vector(-223.947816, -75, 0), App.Vector(-133.947816, -75, 0)),
    Part.ArcOfCircle(Part.Circle(App.Vector(-123.947817, -75.000001, 0), App.Vector(0, 0, 1), 9.999999), math.radians(179.999996), math.radians(270.000004)),
    Part.LineSegment(App.Vector(-123.947816, -85, 0), App.Vector(-93.947816, -85, 0)),
    Part.ArcOfCircle(Part.Circle(App.Vector(-93.947815, -75.000001, 0), App.Vector(0, 0, 1), 9.999999), math.radians(-90.000004), math.radians(0.000004)),
    Part.ArcOfCircle(Part.Circle(App.Vector(-236.947814, -7.120599, 0), App.Vector(0, 0, 1), 2.000002), math.radians(90.000055), math.radians(179.999945)),
    Part.LineSegment(App.Vector(-236.947816, -5.120597, 0), App.Vector(-199.947816, -5.120597, 0)),
    Part.ArcOfCircle(Part.Circle(App.Vector(-199.947816, -7.120597, 0), App.Vector(0, 0, 1), 2), math.radians(0.000006), math.radians(89.999994)),
    Part.LineSegment(App.Vector(-197.947816, -7.120597, 0), App.Vector(-197.947816, -44.120597, 0)),
    Part.ArcOfCircle(Part.Circle(App.Vector(-199.947815, -44.120598, 0), App.Vector(0, 0, 1), 1.999999), math.radians(-90.000043), math.radians(0.000043)),
    Part.LineSegment(App.Vector(-199.947816, -46.120597, 0), App.Vector(-236.947816, -46.120597, 0)),
    Part.ArcOfCircle(Part.Circle(App.Vector(-236.947816, -44.120597, 0), App.Vector(0, 0, 1), 2), math.radians(-179.999994), math.radians(-90.000006)),
    Part.LineSegment(App.Vector(-238.947816, -44.120597, 0), App.Vector(-238.947816, -7.120597, 0)),
    Part.Circle(App.Vector(-113.947816, -70, 0), App.Vector(0, 0, 1), 6.25),
    Part.Circle(App.Vector(-113.947816, -46, 0), App.Vector(0, 0, 1), 6.25),
    Part.Circle(App.Vector(-113.947816, -22, 0), App.Vector(0, 0, 1), 6.25),
    Part.Circle(App.Vector(-113.947816, 2, 0), App.Vector(0, 0, 1), 6.25),
    Part.Circle(App.Vector(-113.947816, 26, 0), App.Vector(0, 0, 1), 6.25),
    Part.Circle(App.Vector(-113.947816, 50, 0), App.Vector(0, 0, 1), 6.25),
], False)
sketch4.addConstraint([
    Sketcher.Constraint("Coincident", 0, 2, 1, 1),
    Sketcher.Constraint("Tangent", 1, 2, 2, 1),
    Sketcher.Constraint("Tangent", 2, 2, 3, 1),
    Sketcher.Constraint("Tangent", 3, 2, 4, 1),
    Sketcher.Constraint("Tangent", 4, 2, 5, 2),
    Sketcher.Constraint("Tangent", 5, 1, 6, 1),
    Sketcher.Constraint("Tangent", 6, 2, 7, 1),
    Sketcher.Constraint("Tangent", 7, 2, 8, 1),
    Sketcher.Constraint("Tangent", 8, 2, 9, 1),
    Sketcher.Constraint("Tangent", 9, 2, 10, 1),
    Sketcher.Constraint("Coincident", 10, 2, 11, 1),
    Sketcher.Constraint("Tangent", 11, 2, 12, 1),
    Sketcher.Constraint("Tangent", 12, 2, 13, 1),
    Sketcher.Constraint("Tangent", 13, 2, 0, 1),
    Sketcher.Constraint("Tangent", 14, 1, 15, 1),
    Sketcher.Constraint("Tangent", 15, 2, 16, 2),
    Sketcher.Constraint("Tangent", 16, 1, 17, 1),
    Sketcher.Constraint("Tangent", 17, 2, 18, 2),
    Sketcher.Constraint("Tangent", 18, 1, 19, 1),
    Sketcher.Constraint("Tangent", 19, 2, 20, 2),
    Sketcher.Constraint("Tangent", 20, 1, 21, 1),
    Sketcher.Constraint("Tangent", 21, 2, 14, 2),
    Sketcher.Constraint("Vertical", 0),
    Sketcher.Constraint("Vertical", 4),
    Sketcher.Constraint("Horizontal", 6),
    Sketcher.Constraint("Vertical", 8),
    Sketcher.Constraint("Horizontal", 10),
    Sketcher.Constraint("Horizontal", 12),
    Sketcher.Constraint("Horizontal", 15),
    Sketcher.Constraint("Vertical", 17),
    Sketcher.Constraint("Horizontal", 19),
    Sketcher.Constraint("Vertical", 21),
    Sketcher.Constraint("Equal", 7, 9),
    Sketcher.Constraint("Equal", 11, 13),
    Sketcher.Constraint("Equal", 14, 16),
    Sketcher.Constraint("Equal", 16, 18),
    Sketcher.Constraint("Equal", 18, 20),
    Sketcher.Constraint("Equal", 22, 23),
    Sketcher.Constraint("Equal", 23, 24),
    Sketcher.Constraint("Equal", 24, 25),
    Sketcher.Constraint("Equal", 25, 26),
    Sketcher.Constraint("Equal", 26, 27),
    Sketcher.Constraint("Horizontal", 2, 3, 3, 2),
    Sketcher.Constraint("Horizontal", 13, 3, 9, 2),
    Sketcher.Constraint("Vertical", 2, 3, 22, 3),
    Sketcher.Constraint("Vertical", 22, 3, 23, 3),
    Sketcher.Constraint("Vertical", 23, 3, 24, 3),
    Sketcher.Constraint("Vertical", 24, 3, 25, 3),
    Sketcher.Constraint("Vertical", 25, 3, 26, 3),
    Sketcher.Constraint("Vertical", 26, 3, 27, 3),
    Sketcher.Constraint("Vertical", 4, 2, 10, 2),
    Sketcher.Constraint("Equal", 19, 17),
    Sketcher.Constraint("Radius", 2, 20.0),
    Sketcher.Constraint("Radius", 5, 30.0),
    Sketcher.Constraint("Radius", 7, 39.999999),
    Sketcher.Constraint("Radius", 11, 9.999999),
    Sketcher.Constraint("Radius", 14, 2.000002),
    Sketcher.Constraint("Diameter", 22, 12.5),
    Sketcher.Constraint("DistanceX", 6, 2, 6, 1, 60.0),
    Sketcher.Constraint("DistanceX", 12, 1, 12, 2, 30.0),
    Sketcher.Constraint("DistanceX", 15, 1, 15, 2, 37.0),
    Sketcher.Constraint("DistanceY", 9, 3, -1, 1, 34.999999),
    Sketcher.Constraint("DistanceY", 22, 3, -1, 1, 70.0),
    Sketcher.Constraint("DistanceY", 23, 3, -1, 1, 46.0),
    Sketcher.Constraint("DistanceY", 24, 3, -1, 1, 22.0),
    Sketcher.Constraint("DistanceY", -1, 1, 25, 3, 2.0),
    Sketcher.Constraint("DistanceY", -1, 1, 26, 3, 26.0),
    Sketcher.Constraint("DistanceY", -1, 1, 27, 3, 50.0),
    Sketcher.Constraint("DistanceX", 14, 3, 9, 3, 12.999999),
    Sketcher.Constraint("DistanceY", 14, 3, 2, 3, 58.000001),
    Sketcher.Constraint("DistanceY", 2, 3, 2, 2, 10.000001),
    Sketcher.Constraint("DistanceY", 4, 1, 4, 2, 2.879402),
    Sketcher.Constraint("DistanceY", -1, 1, 3, 3, 50.879399),
    Sketcher.Constraint("DistanceY", 0, 1, 0, 2, 137.925583),
    Sketcher.Constraint("DistanceX", 2, 3, -1, 1, 113.947816),
])
pad4 = body4.newObject("PartDesign::Pad", "Pad003")
pad4.Profile = sketch4
pad4.Length = 6

doc.recompute()
